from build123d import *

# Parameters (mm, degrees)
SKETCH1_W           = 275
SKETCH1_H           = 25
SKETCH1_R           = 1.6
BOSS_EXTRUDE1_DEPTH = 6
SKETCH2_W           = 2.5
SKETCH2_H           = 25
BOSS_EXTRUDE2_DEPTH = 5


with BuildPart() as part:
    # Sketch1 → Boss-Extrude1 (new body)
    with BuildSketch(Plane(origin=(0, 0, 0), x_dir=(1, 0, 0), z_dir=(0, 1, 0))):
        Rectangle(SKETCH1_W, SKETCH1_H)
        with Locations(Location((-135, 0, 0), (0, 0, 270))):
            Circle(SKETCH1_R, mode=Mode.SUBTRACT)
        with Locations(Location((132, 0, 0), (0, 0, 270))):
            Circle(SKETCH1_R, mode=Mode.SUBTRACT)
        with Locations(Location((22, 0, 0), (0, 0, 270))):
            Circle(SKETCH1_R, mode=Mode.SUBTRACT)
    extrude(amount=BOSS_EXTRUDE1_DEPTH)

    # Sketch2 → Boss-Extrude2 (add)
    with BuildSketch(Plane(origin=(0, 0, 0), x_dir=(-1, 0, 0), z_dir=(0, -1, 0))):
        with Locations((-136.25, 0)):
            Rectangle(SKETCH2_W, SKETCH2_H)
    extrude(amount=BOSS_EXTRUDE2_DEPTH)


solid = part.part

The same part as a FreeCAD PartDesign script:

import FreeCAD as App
import Part
import Sketcher

doc = App.newDocument("Part")
body = doc.addObject("PartDesign::Body", "Body")

sketch1 = body.newObject("Sketcher::SketchObject", "Sketch")
sketch1.AttachmentSupport = (doc.getObject("XZ_Plane"), [""])
sketch1.MapMode = "FlatFace"
sketch1.addGeometry([
    Part.LineSegment(App.Vector(-137.5, -12.5, 0), App.Vector(-137.5, 12.5, 0)),
    Part.LineSegment(App.Vector(-137.5, 12.5, 0), App.Vector(137.5, 12.5, 0)),
    Part.LineSegment(App.Vector(137.5, 12.5, 0), App.Vector(137.5, -12.5, 0)),
    Part.LineSegment(App.Vector(137.5, -12.5, 0), App.Vector(-137.5, -12.5, 0)),
    Part.Circle(App.Vector(-135, 0, 0), App.Vector(0, 0, 1), 1.6),
    Part.Circle(App.Vector(22, 0, 0), App.Vector(0, 0, 1), 1.6),
    Part.Circle(App.Vector(132, 0, 0), App.Vector(0, 0, 1), 1.6),
], False)
sketch1.addConstraint([
    Sketcher.Constraint("Coincident", 0, 2, 1, 1),
    Sketcher.Constraint("Coincident", 1, 2, 2, 1),
    Sketcher.Constraint("Coincident", 2, 2, 3, 1),
    Sketcher.Constraint("Coincident", 3, 2, 0, 1),
    Sketcher.Constraint("Vertical", 0),
    Sketcher.Constraint("Horizontal", 1),
    Sketcher.Constraint("Vertical", 2),
    Sketcher.Constraint("Horizontal", 3),
    Sketcher.Constraint("Equal", 4, 5),
    Sketcher.Constraint("Equal", 5, 6),
    Sketcher.Constraint("Symmetric", 0, 2, 2, 2, -1, 1),
    Sketcher.Constraint("PointOnObject", 4, 3, -1),
    Sketcher.Constraint("PointOnObject", 5, 3, -1),
    Sketcher.Constraint("PointOnObject", 6, 3, -1),
    Sketcher.Constraint("Diameter", 4, 3.2),
    Sketcher.Constraint("DistanceX", 1, 1, 1, 2, 275.0),
    Sketcher.Constraint("DistanceY", 0, 1, 0, 2, 25.0),
    Sketcher.Constraint("DistanceX", 4, 3, -1, 1, 135.0),
    Sketcher.Constraint("DistanceX", -1, 1, 5, 3, 22.0),
    Sketcher.Constraint("DistanceX", -1, 1, 6, 3, 132.0),
])
pad1 = body.newObject("PartDesign::Pad", "Pad")
pad1.Profile = sketch1
pad1.Length = 6
pad1.Reversed = True

sketch2 = body.newObject("Sketcher::SketchObject", "Sketch001")
sketch2.AttachmentSupport = (doc.getObject("XZ_Plane"), [""])
sketch2.MapMode = "FlatFace"
sketch2.addGeometry([
    Part.LineSegment(App.Vector(137.5, -12.5, 0), App.Vector(137.5, 12.5, 0)),
    Part.LineSegment(App.Vector(137.5, 12.5, 0), App.Vector(135, 12.5, 0)),
    Part.LineSegment(App.Vector(135, 12.5, 0), App.Vector(135, -12.5, 0)),
    Part.LineSegment(App.Vector(135, -12.5, 0), App.Vector(137.5, -12.5, 0)),
], False)
sketch2.addConstraint([
    Sketcher.Constraint("Coincident", 0, 2, 1, 1),
    Sketcher.Constraint("Coincident", 1, 2, 2, 1),
    Sketcher.Constraint("Coincident", 2, 2, 3, 1),
    Sketcher.Constraint("Coincident", 3, 2, 0, 1),
    Sketcher.Constraint("Vertical", 0),
    Sketcher.Constraint("Horizontal", 1),
    Sketcher.Constraint("Vertical", 2),
    Sketcher.Constraint("Horizontal", 3),
    Sketcher.Constraint("DistanceY", 0, 1, 0, 2, 25.0),
    Sketcher.Constraint("DistanceX", 1, 2, 1, 1, 2.5),
    Sketcher.Constraint("DistanceX", -1, 1, 1, 2, 135.0),
    Sketcher.Constraint("DistanceY", -1, 1, 0, 2, 12.5),
])
pad2 = body.newObject("PartDesign::Pad", "Pad001")
pad2.Profile = sketch2
pad2.Length = 5

doc.recompute()
